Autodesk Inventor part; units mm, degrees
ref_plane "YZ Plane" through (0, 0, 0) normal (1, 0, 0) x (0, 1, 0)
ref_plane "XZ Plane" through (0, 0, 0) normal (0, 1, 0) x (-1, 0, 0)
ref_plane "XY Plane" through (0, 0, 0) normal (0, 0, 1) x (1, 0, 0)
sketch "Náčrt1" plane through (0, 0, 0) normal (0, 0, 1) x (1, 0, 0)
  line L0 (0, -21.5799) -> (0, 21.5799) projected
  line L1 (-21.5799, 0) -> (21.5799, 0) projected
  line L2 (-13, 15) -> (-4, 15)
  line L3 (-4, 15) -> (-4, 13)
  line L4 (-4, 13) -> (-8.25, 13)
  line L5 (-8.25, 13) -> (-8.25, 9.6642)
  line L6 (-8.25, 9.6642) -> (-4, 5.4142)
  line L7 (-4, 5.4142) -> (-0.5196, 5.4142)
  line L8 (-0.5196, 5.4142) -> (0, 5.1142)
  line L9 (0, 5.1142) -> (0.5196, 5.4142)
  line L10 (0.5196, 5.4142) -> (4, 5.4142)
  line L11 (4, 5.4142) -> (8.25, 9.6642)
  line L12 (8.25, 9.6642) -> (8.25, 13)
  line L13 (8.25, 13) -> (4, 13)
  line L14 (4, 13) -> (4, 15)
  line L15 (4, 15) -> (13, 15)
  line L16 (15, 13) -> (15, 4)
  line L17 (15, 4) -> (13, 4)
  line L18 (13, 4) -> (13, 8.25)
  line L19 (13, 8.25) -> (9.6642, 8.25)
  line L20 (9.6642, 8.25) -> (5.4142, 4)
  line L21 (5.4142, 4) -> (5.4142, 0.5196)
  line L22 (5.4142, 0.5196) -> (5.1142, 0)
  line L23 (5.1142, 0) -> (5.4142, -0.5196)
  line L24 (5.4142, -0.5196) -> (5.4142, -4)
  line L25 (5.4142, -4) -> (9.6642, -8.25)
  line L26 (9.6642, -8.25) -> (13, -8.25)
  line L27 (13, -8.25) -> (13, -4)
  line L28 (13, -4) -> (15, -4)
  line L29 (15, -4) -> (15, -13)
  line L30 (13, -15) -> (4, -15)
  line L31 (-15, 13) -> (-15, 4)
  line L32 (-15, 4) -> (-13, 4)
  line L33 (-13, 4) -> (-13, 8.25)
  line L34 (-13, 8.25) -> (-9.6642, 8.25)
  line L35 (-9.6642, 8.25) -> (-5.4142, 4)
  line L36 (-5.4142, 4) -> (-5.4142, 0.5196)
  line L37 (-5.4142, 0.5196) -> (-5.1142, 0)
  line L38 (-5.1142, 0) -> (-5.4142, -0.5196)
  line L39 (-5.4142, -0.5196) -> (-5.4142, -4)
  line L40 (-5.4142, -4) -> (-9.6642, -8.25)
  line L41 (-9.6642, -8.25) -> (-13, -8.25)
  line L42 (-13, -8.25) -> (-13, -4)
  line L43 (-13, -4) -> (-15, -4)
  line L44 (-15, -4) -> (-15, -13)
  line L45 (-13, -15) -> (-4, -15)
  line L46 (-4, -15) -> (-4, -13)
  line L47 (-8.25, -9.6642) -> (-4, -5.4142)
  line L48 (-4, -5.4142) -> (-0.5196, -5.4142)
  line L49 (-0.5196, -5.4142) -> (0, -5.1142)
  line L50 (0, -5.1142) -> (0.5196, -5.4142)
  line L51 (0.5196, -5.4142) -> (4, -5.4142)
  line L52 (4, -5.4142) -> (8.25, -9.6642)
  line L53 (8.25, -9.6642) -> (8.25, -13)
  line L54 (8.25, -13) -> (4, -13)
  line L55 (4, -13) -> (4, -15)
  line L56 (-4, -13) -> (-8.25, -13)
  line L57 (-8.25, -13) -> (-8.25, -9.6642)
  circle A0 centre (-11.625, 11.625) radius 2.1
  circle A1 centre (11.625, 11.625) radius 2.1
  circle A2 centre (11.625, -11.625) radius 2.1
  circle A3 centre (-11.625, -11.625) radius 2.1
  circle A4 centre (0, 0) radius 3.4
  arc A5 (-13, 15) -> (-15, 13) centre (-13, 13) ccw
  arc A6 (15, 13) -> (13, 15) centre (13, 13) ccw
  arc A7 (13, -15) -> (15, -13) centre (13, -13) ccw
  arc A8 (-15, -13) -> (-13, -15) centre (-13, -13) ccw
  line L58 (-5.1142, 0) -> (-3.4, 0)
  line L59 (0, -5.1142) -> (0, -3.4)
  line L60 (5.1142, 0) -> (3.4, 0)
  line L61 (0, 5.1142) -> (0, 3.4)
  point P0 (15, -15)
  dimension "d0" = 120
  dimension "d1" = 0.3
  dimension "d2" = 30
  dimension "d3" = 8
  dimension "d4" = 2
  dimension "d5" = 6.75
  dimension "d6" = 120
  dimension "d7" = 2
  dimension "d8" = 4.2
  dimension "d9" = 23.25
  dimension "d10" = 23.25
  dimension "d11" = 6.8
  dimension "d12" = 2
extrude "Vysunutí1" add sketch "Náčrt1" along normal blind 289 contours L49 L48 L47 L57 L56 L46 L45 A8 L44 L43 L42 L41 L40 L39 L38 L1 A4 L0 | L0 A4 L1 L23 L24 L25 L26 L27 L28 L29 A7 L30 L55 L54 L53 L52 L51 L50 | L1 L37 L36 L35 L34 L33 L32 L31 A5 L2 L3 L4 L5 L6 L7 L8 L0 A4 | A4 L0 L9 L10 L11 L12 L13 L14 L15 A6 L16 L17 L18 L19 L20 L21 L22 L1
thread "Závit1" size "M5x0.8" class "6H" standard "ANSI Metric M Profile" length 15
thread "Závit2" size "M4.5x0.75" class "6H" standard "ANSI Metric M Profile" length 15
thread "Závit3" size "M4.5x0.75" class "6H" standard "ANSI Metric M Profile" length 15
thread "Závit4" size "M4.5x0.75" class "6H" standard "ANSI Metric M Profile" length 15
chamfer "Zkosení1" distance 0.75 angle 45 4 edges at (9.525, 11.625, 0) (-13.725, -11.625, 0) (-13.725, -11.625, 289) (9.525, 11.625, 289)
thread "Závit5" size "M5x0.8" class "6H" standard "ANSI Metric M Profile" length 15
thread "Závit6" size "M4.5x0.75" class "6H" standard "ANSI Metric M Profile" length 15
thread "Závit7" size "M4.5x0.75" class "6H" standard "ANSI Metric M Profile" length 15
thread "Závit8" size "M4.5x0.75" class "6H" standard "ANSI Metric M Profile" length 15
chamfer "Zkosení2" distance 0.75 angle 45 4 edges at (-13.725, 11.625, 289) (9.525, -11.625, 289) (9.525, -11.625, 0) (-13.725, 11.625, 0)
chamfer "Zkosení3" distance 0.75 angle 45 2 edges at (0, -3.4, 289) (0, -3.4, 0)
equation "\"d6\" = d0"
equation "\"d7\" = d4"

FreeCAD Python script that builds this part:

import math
import FreeCAD as App
import Part
import Sketcher
from FreeCAD import Vector
Q = App.Units.Quantity


def edges_at(feature, points):
    """Names of the edges that pass closest to the given points."""
    edges = feature.Shape.Edges
    near = lambda p: min(range(len(edges)), key=lambda i: edges[i].distToShape(Part.Vertex(*p))[0])
    return sorted({f"Edge{near(p) + 1}" for p in points})

doc = App.newDocument("Part")
body = doc.addObject("PartDesign::Body", "Body")

sketch1 = doc.addObject("Sketcher::SketchObject", "Sketch")
body.addObject(sketch1)
sketch1.AttachmentSupport = (doc.XY_Plane, [""])
sketch1.MapMode = "FlatFace"
sketch1.addGeometry([
    Part.LineSegment(Vector(-0.5, -5.4, 0), Vector(0, -5.1, 0)),
    Part.LineSegment(Vector(0, -5.1, 0), Vector(0.5, -5.4, 0)),
    Part.LineSegment(Vector(0.5, -5.4, 0), Vector(4, -5.4, 0)),
    Part.LineSegment(Vector(4, -5.4, 0), Vector(8.2, -9.7, 0)),
    Part.LineSegment(Vector(8.2, -9.7, 0), Vector(8.2, -13, 0)),
    Part.LineSegment(Vector(8.2, -13, 0), Vector(4, -13, 0)),
    Part.LineSegment(Vector(4, -13, 0), Vector(4, -15, 0)),
    Part.LineSegment(Vector(4, -15, 0), Vector(13, -15, 0)),
    Part.ArcOfCircle(Part.Circle(Vector(13, -13, 0), Vector(0, 0, 1), 2), math.radians(-90), math.radians(0)),
    Part.LineSegment(Vector(15, -13, 0), Vector(15, -4, 0)),
    Part.LineSegment(Vector(15, -4, 0), Vector(13, -4, 0)),
    Part.LineSegment(Vector(13, -4, 0), Vector(13, -8.2, 0)),
    Part.LineSegment(Vector(13, -8.2, 0), Vector(9.7, -8.2, 0)),
    Part.LineSegment(Vector(9.7, -8.2, 0), Vector(5.4, -4, 0)),
    Part.LineSegment(Vector(5.4, -4, 0), Vector(5.4, -0.5, 0)),
    Part.LineSegment(Vector(5.4, -0.5, 0), Vector(5.1, 0, 0)),
    Part.LineSegment(Vector(5.1, 0, 0), Vector(5.4, 0.5, 0)),
    Part.LineSegment(Vector(5.4, 0.5, 0), Vector(5.4, 4, 0)),
    Part.LineSegment(Vector(5.4, 4, 0), Vector(9.7, 8.2, 0)),
    Part.LineSegment(Vector(9.7, 8.2, 0), Vector(13, 8.2, 0)),
    Part.LineSegment(Vector(13, 8.2, 0), Vector(13, 4, 0)),
    Part.LineSegment(Vector(13, 4, 0), Vector(15, 4, 0)),
    Part.LineSegment(Vector(15, 4, 0), Vector(15, 13, 0)),
    Part.ArcOfCircle(Part.Circle(Vector(13, 13, 0), Vector(0, 0, 1), 2), math.radians(0), math.radians(90)),
    Part.LineSegment(Vector(13, 15, 0), Vector(4, 15, 0)),
    Part.LineSegment(Vector(4, 15, 0), Vector(4, 13, 0)),
    Part.LineSegment(Vector(4, 13, 0), Vector(8.2, 13, 0)),
    Part.LineSegment(Vector(8.2, 13, 0), Vector(8.2, 9.7, 0)),
    Part.LineSegment(Vector(8.2, 9.7, 0), Vector(4, 5.4, 0)),
    Part.LineSegment(Vector(4, 5.4, 0), Vector(0.5, 5.4, 0)),
    Part.LineSegment(Vector(0.5, 5.4, 0), Vector(0, 5.1, 0)),
    Part.LineSegment(Vector(0, 5.1, 0), Vector(-0.5, 5.4, 0)),
    Part.LineSegment(Vector(-0.5, 5.4, 0), Vector(-4, 5.4, 0)),
    Part.LineSegment(Vector(-4, 5.4, 0), Vector(-8.2, 9.7, 0)),
    Part.LineSegment(Vector(-8.2, 9.7, 0), Vector(-8.2, 13, 0)),
    Part.LineSegment(Vector(-8.2, 13, 0), Vector(-4, 13, 0)),
    Part.LineSegment(Vector(-4, 13, 0), Vector(-4, 15, 0)),
    Part.LineSegment(Vector(-4, 15, 0), Vector(-13, 15, 0)),
    Part.ArcOfCircle(Part.Circle(Vector(-13, 13, 0), Vector(0, 0, 1), 2), math.radians(90), math.radians(180)),
    Part.LineSegment(Vector(-15, 13, 0), Vector(-15, 4, 0)),
    Part.LineSegment(Vector(-15, 4, 0), Vector(-13, 4, 0)),
    Part.LineSegment(Vector(-13, 4, 0), Vector(-13, 8.2, 0)),
    Part.LineSegment(Vector(-13, 8.2, 0), Vector(-9.7, 8.2, 0)),
    Part.LineSegment(Vector(-9.7, 8.2, 0), Vector(-5.4, 4, 0)),
    Part.LineSegment(Vector(-5.4, 4, 0), Vector(-5.4, 0.5, 0)),
    Part.LineSegment(Vector(-5.4, 0.5, 0), Vector(-5.1, 0, 0)),
    Part.LineSegment(Vector(-5.1, 0, 0), Vector(-5.4, -0.5, 0)),
    Part.LineSegment(Vector(-5.4, -0.5, 0), Vector(-5.4, -4, 0)),
    Part.LineSegment(Vector(-5.4, -4, 0), Vector(-9.7, -8.2, 0)),
    Part.LineSegment(Vector(-9.7, -8.2, 0), Vector(-13, -8.2, 0)),
    Part.LineSegment(Vector(-13, -8.2, 0), Vector(-13, -4, 0)),
    Part.LineSegment(Vector(-13, -4, 0), Vector(-15, -4, 0)),
    Part.LineSegment(Vector(-15, -4, 0), Vector(-15, -13, 0)),
    Part.ArcOfCircle(Part.Circle(Vector(-13, -13, 0), Vector(0, 0, 1), 2), math.radians(180), math.radians(270)),
    Part.LineSegment(Vector(-13, -15, 0), Vector(-4, -15, 0)),
    Part.LineSegment(Vector(-4, -15, 0), Vector(-4, -13, 0)),
    Part.LineSegment(Vector(-4, -13, 0), Vector(-8.2, -13, 0)),
    Part.LineSegment(Vector(-8.2, -13, 0), Vector(-8.2, -9.7, 0)),
    Part.LineSegment(Vector(-8.2, -9.7, 0), Vector(-4, -5.4, 0)),
    Part.LineSegment(Vector(-4, -5.4, 0), Vector(-0.5, -5.4, 0)),
    Part.Circle(Vector(0, 0, 0), Vector(0, 0, 1), 3.4),
    Part.Circle(Vector(-11.6, -11.6, 0), Vector(0, 0, 1), 2.1),
    Part.Circle(Vector(-11.6, 11.6, 0), Vector(0, 0, 1), 2.1),
    Part.Circle(Vector(11.6, -11.6, 0), Vector(0, 0, 1), 2.1),
    Part.Circle(Vector(11.6, 11.6, 0), Vector(0, 0, 1), 2.1),
], False)
sketch1.addConstraint([
    Sketcher.Constraint("Coincident", 0, 2, 1, 1),
    Sketcher.Constraint("Coincident", 1, 2, 2, 1),
    Sketcher.Constraint("Coincident", 2, 2, 3, 1),
    Sketcher.Constraint("Coincident", 3, 2, 4, 1),
    Sketcher.Constraint("Coincident", 4, 2, 5, 1),
    Sketcher.Constraint("Coincident", 5, 2, 6, 1),
    Sketcher.Constraint("Coincident", 6, 2, 7, 1),
    Sketcher.Constraint("Tangent", 7, 2, 8, 1),
    Sketcher.Constraint("Tangent", 8, 2, 9, 1),
    Sketcher.Constraint("Coincident", 9, 2, 10, 1),
    Sketcher.Constraint("Coincident", 10, 2, 11, 1),
    Sketcher.Constraint("Coincident", 11, 2, 12, 1),
    Sketcher.Constraint("Coincident", 12, 2, 13, 1),
    Sketcher.Constraint("Coincident", 13, 2, 14, 1),
    Sketcher.Constraint("Coincident", 14, 2, 15, 1),
    Sketcher.Constraint("Coincident", 15, 2, 16, 1),
    Sketcher.Constraint("Coincident", 16, 2, 17, 1),
    Sketcher.Constraint("Coincident", 17, 2, 18, 1),
    Sketcher.Constraint("Coincident", 18, 2, 19, 1),
    Sketcher.Constraint("Coincident", 19, 2, 20, 1),
    Sketcher.Constraint("Coincident", 20, 2, 21, 1),
    Sketcher.Constraint("Coincident", 21, 2, 22, 1),
    Sketcher.Constraint("Tangent", 22, 2, 23, 1),
    Sketcher.Constraint("Tangent", 23, 2, 24, 1),
    Sketcher.Constraint("Coincident", 24, 2, 25, 1),
    Sketcher.Constraint("Coincident", 25, 2, 26, 1),
    Sketcher.Constraint("Coincident", 26, 2, 27, 1),
    Sketcher.Constraint("Coincident", 27, 2, 28, 1),
    Sketcher.Constraint("Coincident", 28, 2, 29, 1),
    Sketcher.Constraint("Coincident", 29, 2, 30, 1),
    Sketcher.Constraint("Coincident", 30, 2, 31, 1),
    Sketcher.Constraint("Coincident", 31, 2, 32, 1),
    Sketcher.Constraint("Coincident", 32, 2, 33, 1),
    Sketcher.Constraint("Coincident", 33, 2, 34, 1),
    Sketcher.Constraint("Coincident", 34, 2, 35, 1),
    Sketcher.Constraint("Coincident", 35, 2, 36, 1),
    Sketcher.Constraint("Coincident", 36, 2, 37, 1),
    Sketcher.Constraint("Tangent", 37, 2, 38, 1),
    Sketcher.Constraint("Tangent", 38, 2, 39, 1),
    Sketcher.Constraint("Coincident", 39, 2, 40, 1),
    Sketcher.Constraint("Coincident", 40, 2, 41, 1),
    Sketcher.Constraint("Coincident", 41, 2, 42, 1),
    Sketcher.Constraint("Coincident", 42, 2, 43, 1),
    Sketcher.Constraint("Coincident", 43, 2, 44, 1),
    Sketcher.Constraint("Coincident", 44, 2, 45, 1),
    Sketcher.Constraint("Coincident", 45, 2, 46, 1),
    Sketcher.Constraint("Coincident", 46, 2, 47, 1),
    Sketcher.Constraint("Coincident", 47, 2, 48, 1),
    Sketcher.Constraint("Coincident", 48, 2, 49, 1),
    Sketcher.Constraint("Coincident", 49, 2, 50, 1),
    Sketcher.Constraint("Coincident", 50, 2, 51, 1),
    Sketcher.Constraint("Coincident", 51, 2, 52, 1),
    Sketcher.Constraint("Tangent", 52, 2, 53, 1),
    Sketcher.Constraint("Tangent", 53, 2, 54, 1),
    Sketcher.Constraint("Coincident", 54, 2, 55, 1),
    Sketcher.Constraint("Coincident", 55, 2, 56, 1),
    Sketcher.Constraint("Coincident", 56, 2, 57, 1),
    Sketcher.Constraint("Coincident", 57, 2, 58, 1),
    Sketcher.Constraint("Coincident", 58, 2, 59, 1),
    Sketcher.Constraint("Coincident", 59, 2, 0, 1),
    Sketcher.Constraint("Horizontal", 2),
    Sketcher.Constraint("Vertical", 4),
    Sketcher.Constraint("Horizontal", 5),
    Sketcher.Constraint("Vertical", 6),
    Sketcher.Constraint("Horizontal", 7),
    Sketcher.Constraint("Vertical", 9),
    Sketcher.Constraint("Horizontal", 10),
    Sketcher.Constraint("Vertical", 11),
    Sketcher.Constraint("Horizontal", 12),
    Sketcher.Constraint("Vertical", 14),
    Sketcher.Constraint("Vertical", 17),
    Sketcher.Constraint("Horizontal", 19),
    Sketcher.Constraint("Vertical", 20),
    Sketcher.Constraint("Horizontal", 21),
    Sketcher.Constraint("Vertical", 22),
    Sketcher.Constraint("Horizontal", 24),
    Sketcher.Constraint("Vertical", 25),
    Sketcher.Constraint("Horizontal", 26),
    Sketcher.Constraint("Vertical", 27),
    Sketcher.Constraint("Horizontal", 29),
    Sketcher.Constraint("Horizontal", 32),
    Sketcher.Constraint("Vertical", 34),
    Sketcher.Constraint("Horizontal", 35),
    Sketcher.Constraint("Vertical", 36),
    Sketcher.Constraint("Horizontal", 37),
    Sketcher.Constraint("Vertical", 39),
    Sketcher.Constraint("Horizontal", 40),
    Sketcher.Constraint("Vertical", 41),
    Sketcher.Constraint("Horizontal", 42),
    Sketcher.Constraint("Vertical", 44),
    Sketcher.Constraint("Vertical", 47),
    Sketcher.Constraint("Horizontal", 49),
    Sketcher.Constraint("Vertical", 50),
    Sketcher.Constraint("Horizontal", 51),
    Sketcher.Constraint("Vertical", 52),
    Sketcher.Constraint("Horizontal", 54),
    Sketcher.Constraint("Vertical", 55),
    Sketcher.Constraint("Horizontal", 56),
    Sketcher.Constraint("Vertical", 57),
    Sketcher.Constraint("Horizontal", 59),
    Sketcher.Constraint("Coincident", 60, 3, -1, 1),
    Sketcher.Constraint("Equal", 8, 23),
    Sketcher.Constraint("Equal", 23, 38),
    Sketcher.Constraint("Equal", 38, 53),
    Sketcher.Constraint("Equal", 61, 62),
    Sketcher.Constraint("Equal", 62, 63),
    Sketcher.Constraint("Equal", 63, 64),
    Sketcher.Constraint("Symmetric", 8, 3, 38, 3, -1, 1),
    Sketcher.Constraint("Symmetric", 23, 3, 53, 3, -1, 1),
    Sketcher.Constraint("Symmetric", 62, 3, 63, 3, -1, 1),
    Sketcher.Constraint("Symmetric", 61, 3, 64, 3, -1, 1),
    Sketcher.Constraint("Symmetric", 0, 2, 30, 2, -1, 1),
    Sketcher.Constraint("Symmetric", 1, 2, 31, 2, -1, 1),
    Sketcher.Constraint("Symmetric", 3, 2, 33, 2, -1, 1),
    Sketcher.Constraint("Symmetric", 5, 2, 35, 2, -1, 1),
    Sketcher.Constraint("Symmetric", 10, 2, 40, 2, -1, 1),
    Sketcher.Constraint("Symmetric", 12, 2, 42, 2, -1, 1),
    Sketcher.Constraint("Symmetric", 13, 2, 43, 2, -1, 1),
    Sketcher.Constraint("Symmetric", 15, 2, 45, 2, -1, 1),
    Sketcher.Constraint("Symmetric", 16, 2, 46, 2, -1, 1),
    Sketcher.Constraint("Symmetric", 18, 2, 48, 2, -1, 1),
    Sketcher.Constraint("Symmetric", 20, 2, 50, 2, -1, 1),
    Sketcher.Constraint("Symmetric", 25, 2, 55, 2, -1, 1),
    Sketcher.Constraint("Symmetric", 27, 2, 57, 2, -1, 1),
    Sketcher.Constraint("Symmetric", 28, 2, 58, 2, -1, 1),
    Sketcher.Constraint("Symmetric", 23, 3, 38, 3, -2),
    Sketcher.Constraint("Symmetric", 61, 3, 63, 3, -2),
    Sketcher.Constraint("Symmetric", 29, 2, 31, 2, -2),
    Sketcher.Constraint("Symmetric", 27, 2, 33, 2, -2),
    Sketcher.Constraint("Symmetric", 25, 2, 35, 2, -2),
    Sketcher.Constraint("Symmetric", 20, 2, 40, 2, -2),
    Sketcher.Constraint("Symmetric", 18, 2, 42, 2, -2),
    Sketcher.Constraint("Symmetric", 17, 2, 43, 2, -2),
    Sketcher.Constraint("PointOnObject", 0, 2, -2),
    Sketcher.Constraint("PointOnObject", 15, 2, -1),
    Sketcher.Constraint("Parallel", 3, 13),
    Sketcher.Constraint("Perpendicular", 0, 15),
    Sketcher.Constraint("Perpendicular", 1, 16),
    Sketcher.Constraint("Perpendicular", 13, 18),
    Sketcher.Constraint("Parallel", 18, 28),
    Sketcher.Constraint("Perpendicular", 15, 30),
    Sketcher.Constraint("Perpendicular", 28, 33),
    Sketcher.Constraint("Perpendicular", 30, 45),
    Sketcher.Constraint("Perpendicular", 43, 48),
    Sketcher.Constraint("Horizontal", 53, 3, 4, 2),
    Sketcher.Constraint("Horizontal", 10, 2, 13, 2),
    Sketcher.Constraint("Vertical", 2, 2, 5, 2),
    Sketcher.Constraint("Vertical", 7, 2, 10, 2),
    Sketcher.Constraint("Equal", 49, 4),
    Sketcher.Constraint("Equal", 54, 9),
    Sketcher.Constraint("Equal", 56, 11),
    Sketcher.Constraint("Equal", 59, 14),
    Sketcher.Constraint("Equal", 1, 15),
    Sketcher.Constraint("Radius", 8, 2.0),
    Sketcher.Constraint("Diameter", 60, 6.8),
    Sketcher.Constraint("Diameter", 61, 4.2),
    Sketcher.Constraint("DistanceX", 7, 1, 7, 2, 9.0),
    Sketcher.Constraint("Angle", 0, Q("30.0007 deg")),
    Sketcher.Constraint("DistanceX", -1, 1, 8, 3, 13.0),
    Sketcher.Constraint("Distance", 0, 0.6),
    Sketcher.Constraint("DistanceX", 5, 2, 5, 1, 4.25),
    Sketcher.Constraint("DistanceX", 12, 2, 12, 1, 3.3358),
    Sketcher.Constraint("DistanceX", 61, 3, -1, 1, 11.625),
    Sketcher.Constraint("DistanceY", 61, 3, -1, 1, 11.625),
])
pad1 = doc.addObject("PartDesign::Pad", "Pad")
body.addObject(pad1)
pad1.Profile = sketch1
pad1.Length = 289
doc.recompute()

chamfer = doc.addObject("PartDesign::Chamfer", "Chamfer")
body.addObject(chamfer)
chamfer.Base = (pad1, edges_at(pad1, [
    (9.525, 11.625, 0),
    (-13.725, -11.625, 0),
    (-13.725, -11.625, 289),
    (9.525, 11.625, 289),
]))
chamfer.Size = 0.75
doc.recompute()

chamfer2 = doc.addObject("PartDesign::Chamfer", "Chamfer001")
body.addObject(chamfer2)
chamfer2.Base = (chamfer, edges_at(chamfer, [
    (-13.725, 11.625, 289),
    (9.525, -11.625, 289),
    (9.525, -11.625, 0),
    (-13.725, 11.625, 0),
]))
chamfer2.Size = 0.75
doc.recompute()

chamfer3 = doc.addObject("PartDesign::Chamfer", "Chamfer002")
body.addObject(chamfer3)
chamfer3.Base = (chamfer2, edges_at(chamfer2, [(0, -3.4, 289), (0, -3.4, 0)]))
chamfer3.Size = 0.75

doc.recompute()
